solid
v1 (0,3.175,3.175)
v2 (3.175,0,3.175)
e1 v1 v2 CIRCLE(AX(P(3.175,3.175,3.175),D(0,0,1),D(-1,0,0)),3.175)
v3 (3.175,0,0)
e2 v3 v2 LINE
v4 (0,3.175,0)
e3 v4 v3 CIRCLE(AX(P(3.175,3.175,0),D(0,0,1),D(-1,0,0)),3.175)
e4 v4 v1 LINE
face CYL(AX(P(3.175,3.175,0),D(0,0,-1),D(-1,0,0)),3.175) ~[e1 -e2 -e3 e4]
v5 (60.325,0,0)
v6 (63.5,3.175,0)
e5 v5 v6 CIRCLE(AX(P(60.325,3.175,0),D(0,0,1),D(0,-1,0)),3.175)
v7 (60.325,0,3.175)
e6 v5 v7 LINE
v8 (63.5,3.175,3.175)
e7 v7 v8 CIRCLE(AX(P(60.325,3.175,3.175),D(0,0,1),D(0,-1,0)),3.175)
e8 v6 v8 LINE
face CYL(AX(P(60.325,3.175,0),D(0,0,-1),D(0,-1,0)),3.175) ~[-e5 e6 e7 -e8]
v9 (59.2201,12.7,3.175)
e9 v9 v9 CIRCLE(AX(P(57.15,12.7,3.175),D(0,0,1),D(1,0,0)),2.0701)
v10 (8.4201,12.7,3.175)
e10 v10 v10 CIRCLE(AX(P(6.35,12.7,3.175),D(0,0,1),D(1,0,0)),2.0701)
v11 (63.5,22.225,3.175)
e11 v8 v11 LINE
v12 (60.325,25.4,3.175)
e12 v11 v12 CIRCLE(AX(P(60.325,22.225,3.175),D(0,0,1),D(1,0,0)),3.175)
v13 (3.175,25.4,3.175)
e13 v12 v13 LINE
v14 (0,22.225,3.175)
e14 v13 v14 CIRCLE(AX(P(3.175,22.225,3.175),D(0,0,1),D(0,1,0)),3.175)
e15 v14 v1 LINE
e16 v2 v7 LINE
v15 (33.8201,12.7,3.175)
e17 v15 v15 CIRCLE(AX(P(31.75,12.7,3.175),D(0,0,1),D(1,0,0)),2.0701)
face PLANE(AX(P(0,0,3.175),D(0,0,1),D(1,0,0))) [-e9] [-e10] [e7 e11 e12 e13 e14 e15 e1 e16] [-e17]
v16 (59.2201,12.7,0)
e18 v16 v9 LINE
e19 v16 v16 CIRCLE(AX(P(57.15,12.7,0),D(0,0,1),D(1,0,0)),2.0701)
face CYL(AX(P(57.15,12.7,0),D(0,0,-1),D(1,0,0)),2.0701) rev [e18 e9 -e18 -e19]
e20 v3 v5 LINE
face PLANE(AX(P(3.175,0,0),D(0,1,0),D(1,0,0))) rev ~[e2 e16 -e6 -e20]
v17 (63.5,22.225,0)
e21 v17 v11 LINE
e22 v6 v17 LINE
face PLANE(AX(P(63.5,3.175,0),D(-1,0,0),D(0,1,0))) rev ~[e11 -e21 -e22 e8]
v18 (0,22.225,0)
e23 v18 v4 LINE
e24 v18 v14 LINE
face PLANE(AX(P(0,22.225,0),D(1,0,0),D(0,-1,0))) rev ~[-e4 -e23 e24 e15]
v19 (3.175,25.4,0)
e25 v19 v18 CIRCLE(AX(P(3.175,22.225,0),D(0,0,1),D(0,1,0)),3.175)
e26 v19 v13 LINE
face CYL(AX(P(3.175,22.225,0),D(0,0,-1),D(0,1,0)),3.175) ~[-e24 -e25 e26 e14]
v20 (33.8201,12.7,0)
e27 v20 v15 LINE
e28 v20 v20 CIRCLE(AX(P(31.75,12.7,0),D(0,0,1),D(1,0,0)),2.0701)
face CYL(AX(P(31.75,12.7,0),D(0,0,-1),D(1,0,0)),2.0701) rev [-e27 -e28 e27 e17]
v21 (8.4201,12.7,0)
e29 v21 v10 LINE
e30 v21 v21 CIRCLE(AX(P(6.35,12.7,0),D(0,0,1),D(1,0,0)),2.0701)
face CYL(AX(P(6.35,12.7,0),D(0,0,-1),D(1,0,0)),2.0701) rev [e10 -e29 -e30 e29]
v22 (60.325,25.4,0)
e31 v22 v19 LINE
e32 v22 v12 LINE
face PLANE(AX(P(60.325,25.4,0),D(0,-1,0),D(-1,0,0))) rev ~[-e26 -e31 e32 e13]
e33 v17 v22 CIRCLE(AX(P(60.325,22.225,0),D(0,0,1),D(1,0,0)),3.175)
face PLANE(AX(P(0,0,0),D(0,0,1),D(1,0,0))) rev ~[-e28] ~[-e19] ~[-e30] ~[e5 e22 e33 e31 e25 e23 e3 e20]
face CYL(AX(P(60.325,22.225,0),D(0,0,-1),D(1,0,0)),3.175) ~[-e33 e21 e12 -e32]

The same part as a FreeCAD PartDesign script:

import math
import FreeCAD as App
import Part
import Sketcher
Q = App.Units.Quantity

doc = App.newDocument("Part")
body = doc.addObject("PartDesign::Body", "Body")

sketch1 = body.newObject("Sketcher::SketchObject", "Sketch")
sketch1.AttachmentSupport = (doc.getObject("XY_Plane"), [""])
sketch1.MapMode = "FlatFace"
sketch1.addGeometry([
    Part.ArcOfCircle(Part.Circle(App.Vector(3.2, 3.2, 0), App.Vector(0, 0, 1), 3.2), math.radians(180), math.radians(270)),
    Part.LineSegment(App.Vector(3.2, 0, 0), App.Vector(60.3, 0, 0)),
    Part.ArcOfCircle(Part.Circle(App.Vector(60.3, 3.2, 0), App.Vector(0, 0, 1), 3.2), math.radians(-90), math.radians(0)),
    Part.LineSegment(App.Vector(63.5, 3.2, 0), App.Vector(63.5, 22.2, 0)),
    Part.ArcOfCircle(Part.Circle(App.Vector(60.3, 22.2, 0), App.Vector(0, 0, 1), 3.2), math.radians(0), math.radians(90)),
    Part.LineSegment(App.Vector(60.3, 25.4, 0), App.Vector(3.2, 25.4, 0)),
    Part.ArcOfCircle(Part.Circle(App.Vector(3.2, 22.2, 0), App.Vector(0, 0, 1), 3.2), math.radians(90), math.radians(180)),
    Part.LineSegment(App.Vector(0, 22.2, 0), App.Vector(0, 3.2, 0)),
    Part.Circle(App.Vector(6.3, 12.7, 0), App.Vector(0, 0, 1), 2.1),
    Part.Circle(App.Vector(31.8, 12.7, 0), App.Vector(0, 0, 1), 2.1),
    Part.Circle(App.Vector(57.1, 12.7, 0), App.Vector(0, 0, 1), 2.1),
], False)
sketch1.addConstraint([
    Sketcher.Constraint("Tangent", 0, 2, 1, 1),
    Sketcher.Constraint("Tangent", 1, 2, 2, 1),
    Sketcher.Constraint("Tangent", 2, 2, 3, 1),
    Sketcher.Constraint("Tangent", 3, 2, 4, 1),
    Sketcher.Constraint("Tangent", 4, 2, 5, 1),
    Sketcher.Constraint("Tangent", 5, 2, 6, 1),
    Sketcher.Constraint("Tangent", 6, 2, 7, 1),
    Sketcher.Constraint("Tangent", 7, 2, 0, 1),
    Sketcher.Constraint("Horizontal", 1),
    Sketcher.Constraint("Vertical", 3),
    Sketcher.Constraint("Horizontal", 5),
    Sketcher.Constraint("Vertical", 7),
    Sketcher.Constraint("Equal", 0, 2),
    Sketcher.Constraint("Equal", 2, 4),
    Sketcher.Constraint("Equal", 4, 6),
    Sketcher.Constraint("Equal", 8, 9),
    Sketcher.Constraint("Equal", 9, 10),
    Sketcher.Constraint("PointOnObject", 0, 2, -1),
    Sketcher.Constraint("PointOnObject", 6, 2, -2),
    Sketcher.Constraint("Horizontal", 8, 3, 9, 3),
    Sketcher.Constraint("Horizontal", 9, 3, 10, 3),
    Sketcher.Constraint("Diameter", 8, Q("0.163 in")),
    Sketcher.Constraint("DistanceY", -1, 1, 4, 2, Q("1 in")),
    Sketcher.Constraint("Radius", 0, Q("0.125 in")),
    Sketcher.Constraint("DistanceX", 8, 3, 9, 3, Q("1 in")),
    Sketcher.Constraint("DistanceX", 9, 3, 10, 3, Q("1 in")),
    Sketcher.Constraint("DistanceX", -1, 1, 2, 2, Q("2.5 in")),
    Sketcher.Constraint("DistanceX", -1, 1, 8, 3, Q("0.25 in")),
    Sketcher.Constraint("DistanceY", -1, 1, 8, 3, Q("0.5 in")),
])
pad1 = body.newObject("PartDesign::Pad", "Pad")
pad1.Profile = sketch1
pad1.Length = Q("0.125 in")

doc.recompute()
